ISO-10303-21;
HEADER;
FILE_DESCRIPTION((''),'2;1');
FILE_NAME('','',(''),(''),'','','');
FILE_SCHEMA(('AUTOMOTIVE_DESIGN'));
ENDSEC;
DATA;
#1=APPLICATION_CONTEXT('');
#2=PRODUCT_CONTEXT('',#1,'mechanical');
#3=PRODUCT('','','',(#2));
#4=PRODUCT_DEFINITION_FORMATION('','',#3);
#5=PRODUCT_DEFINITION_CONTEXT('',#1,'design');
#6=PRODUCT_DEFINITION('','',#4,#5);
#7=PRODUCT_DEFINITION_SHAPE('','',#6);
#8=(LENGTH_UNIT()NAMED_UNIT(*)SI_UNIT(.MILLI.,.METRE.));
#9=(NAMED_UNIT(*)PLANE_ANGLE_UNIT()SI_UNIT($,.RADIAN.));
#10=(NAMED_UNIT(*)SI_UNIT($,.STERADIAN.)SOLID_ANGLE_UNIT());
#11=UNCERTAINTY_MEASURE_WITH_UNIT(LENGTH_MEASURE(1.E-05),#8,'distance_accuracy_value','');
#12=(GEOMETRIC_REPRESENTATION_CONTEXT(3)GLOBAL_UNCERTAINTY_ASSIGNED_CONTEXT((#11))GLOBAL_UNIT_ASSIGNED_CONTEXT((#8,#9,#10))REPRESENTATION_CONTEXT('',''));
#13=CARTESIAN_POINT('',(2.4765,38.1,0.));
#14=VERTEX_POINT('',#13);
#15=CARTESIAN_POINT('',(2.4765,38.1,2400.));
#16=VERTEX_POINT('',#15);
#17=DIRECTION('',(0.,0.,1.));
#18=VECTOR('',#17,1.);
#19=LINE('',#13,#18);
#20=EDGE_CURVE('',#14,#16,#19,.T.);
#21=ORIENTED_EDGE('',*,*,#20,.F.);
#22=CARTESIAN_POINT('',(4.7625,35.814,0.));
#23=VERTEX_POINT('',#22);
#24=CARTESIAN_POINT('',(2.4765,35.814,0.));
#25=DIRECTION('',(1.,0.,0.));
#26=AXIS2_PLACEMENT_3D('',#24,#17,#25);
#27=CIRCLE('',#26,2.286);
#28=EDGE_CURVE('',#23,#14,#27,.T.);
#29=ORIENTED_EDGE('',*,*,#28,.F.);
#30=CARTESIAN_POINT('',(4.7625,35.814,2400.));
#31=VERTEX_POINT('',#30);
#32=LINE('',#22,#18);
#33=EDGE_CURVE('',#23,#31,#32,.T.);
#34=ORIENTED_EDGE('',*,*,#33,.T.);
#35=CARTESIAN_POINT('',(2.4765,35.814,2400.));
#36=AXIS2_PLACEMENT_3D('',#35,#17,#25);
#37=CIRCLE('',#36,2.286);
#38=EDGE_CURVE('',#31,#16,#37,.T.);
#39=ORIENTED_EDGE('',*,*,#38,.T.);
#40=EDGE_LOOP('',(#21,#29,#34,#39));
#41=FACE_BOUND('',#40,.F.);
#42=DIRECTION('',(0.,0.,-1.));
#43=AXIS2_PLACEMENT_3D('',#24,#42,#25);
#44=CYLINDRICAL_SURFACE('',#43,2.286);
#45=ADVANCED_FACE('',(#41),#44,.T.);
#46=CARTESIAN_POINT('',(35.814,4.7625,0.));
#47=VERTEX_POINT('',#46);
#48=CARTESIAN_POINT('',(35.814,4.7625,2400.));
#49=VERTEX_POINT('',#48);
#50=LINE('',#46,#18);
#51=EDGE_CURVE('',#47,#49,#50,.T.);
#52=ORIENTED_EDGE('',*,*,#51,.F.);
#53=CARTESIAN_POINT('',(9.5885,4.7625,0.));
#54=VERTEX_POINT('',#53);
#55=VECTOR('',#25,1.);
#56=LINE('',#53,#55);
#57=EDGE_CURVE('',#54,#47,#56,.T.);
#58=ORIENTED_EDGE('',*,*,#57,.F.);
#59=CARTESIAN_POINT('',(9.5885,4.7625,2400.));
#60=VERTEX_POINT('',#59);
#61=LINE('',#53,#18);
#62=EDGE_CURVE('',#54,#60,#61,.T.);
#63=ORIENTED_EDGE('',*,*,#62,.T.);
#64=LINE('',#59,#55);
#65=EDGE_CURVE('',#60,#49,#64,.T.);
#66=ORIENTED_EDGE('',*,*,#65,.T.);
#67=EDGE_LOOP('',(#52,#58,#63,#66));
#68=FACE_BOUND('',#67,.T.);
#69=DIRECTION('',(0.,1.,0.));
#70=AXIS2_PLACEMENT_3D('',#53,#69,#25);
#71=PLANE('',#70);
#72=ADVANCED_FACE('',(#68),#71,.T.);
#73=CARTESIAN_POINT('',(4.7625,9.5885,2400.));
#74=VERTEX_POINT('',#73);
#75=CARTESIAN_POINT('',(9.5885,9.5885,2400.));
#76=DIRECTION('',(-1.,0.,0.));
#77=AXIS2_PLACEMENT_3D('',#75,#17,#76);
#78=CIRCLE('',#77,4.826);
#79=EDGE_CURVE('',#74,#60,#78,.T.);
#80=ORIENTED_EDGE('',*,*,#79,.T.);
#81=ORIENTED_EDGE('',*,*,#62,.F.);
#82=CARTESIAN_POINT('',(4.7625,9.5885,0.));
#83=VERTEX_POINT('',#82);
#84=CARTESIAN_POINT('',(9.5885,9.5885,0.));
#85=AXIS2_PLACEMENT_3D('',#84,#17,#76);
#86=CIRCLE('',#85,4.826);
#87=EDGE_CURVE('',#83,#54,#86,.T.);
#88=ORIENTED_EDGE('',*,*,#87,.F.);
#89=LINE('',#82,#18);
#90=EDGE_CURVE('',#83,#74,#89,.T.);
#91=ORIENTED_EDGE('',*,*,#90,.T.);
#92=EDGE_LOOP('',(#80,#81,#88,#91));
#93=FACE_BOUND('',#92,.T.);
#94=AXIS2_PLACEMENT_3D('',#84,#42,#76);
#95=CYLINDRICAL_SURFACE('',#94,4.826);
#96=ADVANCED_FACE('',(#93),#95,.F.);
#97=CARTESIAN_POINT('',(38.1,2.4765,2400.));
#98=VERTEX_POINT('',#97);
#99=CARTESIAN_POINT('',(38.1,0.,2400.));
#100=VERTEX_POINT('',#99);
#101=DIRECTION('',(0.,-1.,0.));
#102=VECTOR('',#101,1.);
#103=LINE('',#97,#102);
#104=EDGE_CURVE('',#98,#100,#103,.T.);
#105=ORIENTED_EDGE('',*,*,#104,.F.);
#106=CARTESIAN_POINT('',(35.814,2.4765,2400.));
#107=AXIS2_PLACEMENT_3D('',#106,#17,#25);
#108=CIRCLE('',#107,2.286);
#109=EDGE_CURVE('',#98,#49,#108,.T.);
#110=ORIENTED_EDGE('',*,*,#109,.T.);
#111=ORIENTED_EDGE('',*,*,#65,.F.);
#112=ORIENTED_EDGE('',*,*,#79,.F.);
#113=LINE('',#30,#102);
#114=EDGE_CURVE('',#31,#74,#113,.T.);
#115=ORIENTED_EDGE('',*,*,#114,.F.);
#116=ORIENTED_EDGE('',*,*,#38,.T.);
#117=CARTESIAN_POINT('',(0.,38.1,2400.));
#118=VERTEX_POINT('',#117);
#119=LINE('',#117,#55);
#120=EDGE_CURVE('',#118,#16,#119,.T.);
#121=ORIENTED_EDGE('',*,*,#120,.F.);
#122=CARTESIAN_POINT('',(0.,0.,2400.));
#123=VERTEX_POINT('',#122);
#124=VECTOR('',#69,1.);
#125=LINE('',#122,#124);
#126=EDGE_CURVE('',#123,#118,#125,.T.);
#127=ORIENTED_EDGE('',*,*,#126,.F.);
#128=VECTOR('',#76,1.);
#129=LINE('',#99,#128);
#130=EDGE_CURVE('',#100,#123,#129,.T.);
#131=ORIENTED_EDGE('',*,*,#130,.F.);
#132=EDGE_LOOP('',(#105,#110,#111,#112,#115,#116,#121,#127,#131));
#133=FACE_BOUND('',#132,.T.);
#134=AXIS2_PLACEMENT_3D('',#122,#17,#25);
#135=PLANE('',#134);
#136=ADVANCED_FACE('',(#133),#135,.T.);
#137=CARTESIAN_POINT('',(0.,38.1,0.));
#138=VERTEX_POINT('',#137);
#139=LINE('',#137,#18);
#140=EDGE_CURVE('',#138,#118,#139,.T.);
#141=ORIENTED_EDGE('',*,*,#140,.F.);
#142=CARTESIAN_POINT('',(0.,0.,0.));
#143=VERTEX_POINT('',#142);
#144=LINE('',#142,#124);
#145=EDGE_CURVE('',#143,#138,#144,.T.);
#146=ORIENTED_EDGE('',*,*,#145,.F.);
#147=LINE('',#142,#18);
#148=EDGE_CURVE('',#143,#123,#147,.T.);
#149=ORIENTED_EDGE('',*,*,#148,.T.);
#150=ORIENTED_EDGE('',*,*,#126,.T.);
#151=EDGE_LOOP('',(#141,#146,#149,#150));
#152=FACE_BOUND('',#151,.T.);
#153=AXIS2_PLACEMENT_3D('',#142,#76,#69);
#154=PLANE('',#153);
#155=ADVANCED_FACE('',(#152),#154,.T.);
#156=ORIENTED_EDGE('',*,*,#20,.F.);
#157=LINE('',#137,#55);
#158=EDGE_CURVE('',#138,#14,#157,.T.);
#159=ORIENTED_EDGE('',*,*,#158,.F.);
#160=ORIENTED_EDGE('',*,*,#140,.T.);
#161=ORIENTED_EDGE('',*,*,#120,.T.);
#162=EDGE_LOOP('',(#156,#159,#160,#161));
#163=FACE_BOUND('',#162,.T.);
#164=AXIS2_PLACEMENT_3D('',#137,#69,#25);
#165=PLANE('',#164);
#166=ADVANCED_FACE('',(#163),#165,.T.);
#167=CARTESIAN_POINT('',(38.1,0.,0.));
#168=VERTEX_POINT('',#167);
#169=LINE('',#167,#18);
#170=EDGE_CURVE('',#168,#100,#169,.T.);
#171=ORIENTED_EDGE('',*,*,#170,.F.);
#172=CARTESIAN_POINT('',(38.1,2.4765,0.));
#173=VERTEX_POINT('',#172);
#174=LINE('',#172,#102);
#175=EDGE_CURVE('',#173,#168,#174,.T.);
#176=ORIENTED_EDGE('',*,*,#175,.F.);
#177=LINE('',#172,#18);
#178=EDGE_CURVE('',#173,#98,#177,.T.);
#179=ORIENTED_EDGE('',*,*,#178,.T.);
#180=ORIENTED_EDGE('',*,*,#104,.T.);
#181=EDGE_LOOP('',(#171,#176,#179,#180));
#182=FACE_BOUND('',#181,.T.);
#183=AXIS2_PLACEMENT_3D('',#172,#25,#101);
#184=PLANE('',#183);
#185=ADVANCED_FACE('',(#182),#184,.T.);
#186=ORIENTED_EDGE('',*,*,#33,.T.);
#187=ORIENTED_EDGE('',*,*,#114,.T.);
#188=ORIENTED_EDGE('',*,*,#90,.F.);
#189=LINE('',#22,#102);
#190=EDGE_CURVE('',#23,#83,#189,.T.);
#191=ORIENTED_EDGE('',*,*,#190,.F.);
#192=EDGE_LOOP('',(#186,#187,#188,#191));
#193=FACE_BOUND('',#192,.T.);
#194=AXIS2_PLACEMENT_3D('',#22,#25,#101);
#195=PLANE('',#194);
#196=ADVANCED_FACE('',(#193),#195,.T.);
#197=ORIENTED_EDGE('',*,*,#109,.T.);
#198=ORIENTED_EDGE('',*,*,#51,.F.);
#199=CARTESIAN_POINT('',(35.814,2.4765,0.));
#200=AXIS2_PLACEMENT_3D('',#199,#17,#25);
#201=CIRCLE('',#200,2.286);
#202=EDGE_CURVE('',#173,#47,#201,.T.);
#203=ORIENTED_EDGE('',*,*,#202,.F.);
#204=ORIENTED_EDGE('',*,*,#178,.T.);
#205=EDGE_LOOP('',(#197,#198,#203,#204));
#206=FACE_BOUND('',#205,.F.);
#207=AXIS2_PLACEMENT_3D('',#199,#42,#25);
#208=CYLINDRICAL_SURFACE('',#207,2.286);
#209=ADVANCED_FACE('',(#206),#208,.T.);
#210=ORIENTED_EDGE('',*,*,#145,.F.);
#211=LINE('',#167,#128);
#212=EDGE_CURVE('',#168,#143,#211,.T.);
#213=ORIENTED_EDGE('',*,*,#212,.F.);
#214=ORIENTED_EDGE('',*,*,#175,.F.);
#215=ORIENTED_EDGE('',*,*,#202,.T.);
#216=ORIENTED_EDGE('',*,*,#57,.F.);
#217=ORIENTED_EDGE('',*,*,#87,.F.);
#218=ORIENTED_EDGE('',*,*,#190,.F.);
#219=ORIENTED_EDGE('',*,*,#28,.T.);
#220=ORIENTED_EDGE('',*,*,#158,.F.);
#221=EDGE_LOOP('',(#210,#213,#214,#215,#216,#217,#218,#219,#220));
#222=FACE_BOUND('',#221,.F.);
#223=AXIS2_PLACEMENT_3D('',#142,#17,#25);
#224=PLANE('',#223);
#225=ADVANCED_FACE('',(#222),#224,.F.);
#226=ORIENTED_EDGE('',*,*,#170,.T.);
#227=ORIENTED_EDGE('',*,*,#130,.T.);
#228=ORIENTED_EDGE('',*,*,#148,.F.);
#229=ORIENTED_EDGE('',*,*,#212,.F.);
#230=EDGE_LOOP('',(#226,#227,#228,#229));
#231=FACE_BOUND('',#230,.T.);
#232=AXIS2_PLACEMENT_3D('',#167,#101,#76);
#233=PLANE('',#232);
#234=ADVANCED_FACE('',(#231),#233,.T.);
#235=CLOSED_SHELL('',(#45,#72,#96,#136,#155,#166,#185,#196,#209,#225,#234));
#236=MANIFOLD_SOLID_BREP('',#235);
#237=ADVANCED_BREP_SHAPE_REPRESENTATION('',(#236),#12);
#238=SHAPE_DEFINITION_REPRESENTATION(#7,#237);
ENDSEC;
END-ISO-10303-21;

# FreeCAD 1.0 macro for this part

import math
import FreeCAD as App
import Part
import Sketcher
Q = App.Units.Quantity

doc = App.newDocument("Part")
body = doc.addObject("PartDesign::Body", "Body")

# Sketch on XY plane
sketch1 = body.newObject("Sketcher::SketchObject", "Sketch")
sketch1.AttachmentSupport = (doc.getObject("XY_Plane"), [""])
sketch1.MapMode = "FlatFace"
sketch1.addGeometry([
    Part.LineSegment(App.Vector(0, 0, 0), App.Vector(38.1, 0, 0)),  # 0
    Part.LineSegment(App.Vector(38.1, 0, 0), App.Vector(38.1, 2.5, 0)),  # 1
    Part.ArcOfCircle(Part.Circle(App.Vector(35.8, 2.5, 0), App.Vector(0, 0, 1), 2.3), math.radians(0), math.radians(90)),  # 2
    Part.LineSegment(App.Vector(35.8, 4.8, 0), App.Vector(9.6, 4.8, 0)),  # 3
    Part.ArcOfCircle(Part.Circle(App.Vector(9.6, 9.6, 0), App.Vector(0, 0, 1), 4.8), math.radians(180), math.radians(270)),  # 4
    Part.LineSegment(App.Vector(4.8, 9.6, 0), App.Vector(4.8, 35.8, 0)),  # 5
    Part.ArcOfCircle(Part.Circle(App.Vector(2.5, 35.8, 0), App.Vector(0, 0, 1), 2.3), math.radians(0), math.radians(90)),  # 6
    Part.LineSegment(App.Vector(2.5, 38.1, 0), App.Vector(0, 38.1, 0)),  # 7
    Part.LineSegment(App.Vector(0, 38.1, 0), App.Vector(0, 0, 0)),  # 8
], False)
sketch1.addConstraint([
    Sketcher.Constraint("Coincident", 0, 2, 1, 1),
    Sketcher.Constraint("Tangent", 1, 2, 2, 1),
    Sketcher.Constraint("Tangent", 2, 2, 3, 1),
    Sketcher.Constraint("Tangent", 3, 2, 4, 2),
    Sketcher.Constraint("Tangent", 4, 1, 5, 1),
    Sketcher.Constraint("Tangent", 5, 2, 6, 1),
    Sketcher.Constraint("Tangent", 6, 2, 7, 1),
    Sketcher.Constraint("Coincident", 7, 2, 8, 1),
    Sketcher.Constraint("Coincident", 8, 2, 0, 1),
    Sketcher.Constraint("Horizontal", 0),
    Sketcher.Constraint("Vertical", 1),
    Sketcher.Constraint("Horizontal", 3),
    Sketcher.Constraint("Vertical", 5),
    Sketcher.Constraint("Horizontal", 7),
    Sketcher.Constraint("Vertical", 8),
    Sketcher.Constraint("Coincident", 8, 2, -1, 1),
    Sketcher.Constraint("Equal", 2, 6),
    Sketcher.Constraint("Equal", 7, 1),
    Sketcher.Constraint("Equal", 3, 5),
    Sketcher.Constraint("Radius", 2, Q("0.09 in")),
    Sketcher.Constraint("Radius", 4, Q("0.19 in")),
    Sketcher.Constraint("DistanceX", 0, 1, 0, 2, Q("1.5 in")),
    Sketcher.Constraint("DistanceY", -1, 1, 2, 2, Q("0.1875 in")),
])
pad1 = body.newObject("PartDesign::Pad", "Pad")
pad1.Profile = sketch1
pad1.Length = Q("94.488189 in")

doc.recompute()
